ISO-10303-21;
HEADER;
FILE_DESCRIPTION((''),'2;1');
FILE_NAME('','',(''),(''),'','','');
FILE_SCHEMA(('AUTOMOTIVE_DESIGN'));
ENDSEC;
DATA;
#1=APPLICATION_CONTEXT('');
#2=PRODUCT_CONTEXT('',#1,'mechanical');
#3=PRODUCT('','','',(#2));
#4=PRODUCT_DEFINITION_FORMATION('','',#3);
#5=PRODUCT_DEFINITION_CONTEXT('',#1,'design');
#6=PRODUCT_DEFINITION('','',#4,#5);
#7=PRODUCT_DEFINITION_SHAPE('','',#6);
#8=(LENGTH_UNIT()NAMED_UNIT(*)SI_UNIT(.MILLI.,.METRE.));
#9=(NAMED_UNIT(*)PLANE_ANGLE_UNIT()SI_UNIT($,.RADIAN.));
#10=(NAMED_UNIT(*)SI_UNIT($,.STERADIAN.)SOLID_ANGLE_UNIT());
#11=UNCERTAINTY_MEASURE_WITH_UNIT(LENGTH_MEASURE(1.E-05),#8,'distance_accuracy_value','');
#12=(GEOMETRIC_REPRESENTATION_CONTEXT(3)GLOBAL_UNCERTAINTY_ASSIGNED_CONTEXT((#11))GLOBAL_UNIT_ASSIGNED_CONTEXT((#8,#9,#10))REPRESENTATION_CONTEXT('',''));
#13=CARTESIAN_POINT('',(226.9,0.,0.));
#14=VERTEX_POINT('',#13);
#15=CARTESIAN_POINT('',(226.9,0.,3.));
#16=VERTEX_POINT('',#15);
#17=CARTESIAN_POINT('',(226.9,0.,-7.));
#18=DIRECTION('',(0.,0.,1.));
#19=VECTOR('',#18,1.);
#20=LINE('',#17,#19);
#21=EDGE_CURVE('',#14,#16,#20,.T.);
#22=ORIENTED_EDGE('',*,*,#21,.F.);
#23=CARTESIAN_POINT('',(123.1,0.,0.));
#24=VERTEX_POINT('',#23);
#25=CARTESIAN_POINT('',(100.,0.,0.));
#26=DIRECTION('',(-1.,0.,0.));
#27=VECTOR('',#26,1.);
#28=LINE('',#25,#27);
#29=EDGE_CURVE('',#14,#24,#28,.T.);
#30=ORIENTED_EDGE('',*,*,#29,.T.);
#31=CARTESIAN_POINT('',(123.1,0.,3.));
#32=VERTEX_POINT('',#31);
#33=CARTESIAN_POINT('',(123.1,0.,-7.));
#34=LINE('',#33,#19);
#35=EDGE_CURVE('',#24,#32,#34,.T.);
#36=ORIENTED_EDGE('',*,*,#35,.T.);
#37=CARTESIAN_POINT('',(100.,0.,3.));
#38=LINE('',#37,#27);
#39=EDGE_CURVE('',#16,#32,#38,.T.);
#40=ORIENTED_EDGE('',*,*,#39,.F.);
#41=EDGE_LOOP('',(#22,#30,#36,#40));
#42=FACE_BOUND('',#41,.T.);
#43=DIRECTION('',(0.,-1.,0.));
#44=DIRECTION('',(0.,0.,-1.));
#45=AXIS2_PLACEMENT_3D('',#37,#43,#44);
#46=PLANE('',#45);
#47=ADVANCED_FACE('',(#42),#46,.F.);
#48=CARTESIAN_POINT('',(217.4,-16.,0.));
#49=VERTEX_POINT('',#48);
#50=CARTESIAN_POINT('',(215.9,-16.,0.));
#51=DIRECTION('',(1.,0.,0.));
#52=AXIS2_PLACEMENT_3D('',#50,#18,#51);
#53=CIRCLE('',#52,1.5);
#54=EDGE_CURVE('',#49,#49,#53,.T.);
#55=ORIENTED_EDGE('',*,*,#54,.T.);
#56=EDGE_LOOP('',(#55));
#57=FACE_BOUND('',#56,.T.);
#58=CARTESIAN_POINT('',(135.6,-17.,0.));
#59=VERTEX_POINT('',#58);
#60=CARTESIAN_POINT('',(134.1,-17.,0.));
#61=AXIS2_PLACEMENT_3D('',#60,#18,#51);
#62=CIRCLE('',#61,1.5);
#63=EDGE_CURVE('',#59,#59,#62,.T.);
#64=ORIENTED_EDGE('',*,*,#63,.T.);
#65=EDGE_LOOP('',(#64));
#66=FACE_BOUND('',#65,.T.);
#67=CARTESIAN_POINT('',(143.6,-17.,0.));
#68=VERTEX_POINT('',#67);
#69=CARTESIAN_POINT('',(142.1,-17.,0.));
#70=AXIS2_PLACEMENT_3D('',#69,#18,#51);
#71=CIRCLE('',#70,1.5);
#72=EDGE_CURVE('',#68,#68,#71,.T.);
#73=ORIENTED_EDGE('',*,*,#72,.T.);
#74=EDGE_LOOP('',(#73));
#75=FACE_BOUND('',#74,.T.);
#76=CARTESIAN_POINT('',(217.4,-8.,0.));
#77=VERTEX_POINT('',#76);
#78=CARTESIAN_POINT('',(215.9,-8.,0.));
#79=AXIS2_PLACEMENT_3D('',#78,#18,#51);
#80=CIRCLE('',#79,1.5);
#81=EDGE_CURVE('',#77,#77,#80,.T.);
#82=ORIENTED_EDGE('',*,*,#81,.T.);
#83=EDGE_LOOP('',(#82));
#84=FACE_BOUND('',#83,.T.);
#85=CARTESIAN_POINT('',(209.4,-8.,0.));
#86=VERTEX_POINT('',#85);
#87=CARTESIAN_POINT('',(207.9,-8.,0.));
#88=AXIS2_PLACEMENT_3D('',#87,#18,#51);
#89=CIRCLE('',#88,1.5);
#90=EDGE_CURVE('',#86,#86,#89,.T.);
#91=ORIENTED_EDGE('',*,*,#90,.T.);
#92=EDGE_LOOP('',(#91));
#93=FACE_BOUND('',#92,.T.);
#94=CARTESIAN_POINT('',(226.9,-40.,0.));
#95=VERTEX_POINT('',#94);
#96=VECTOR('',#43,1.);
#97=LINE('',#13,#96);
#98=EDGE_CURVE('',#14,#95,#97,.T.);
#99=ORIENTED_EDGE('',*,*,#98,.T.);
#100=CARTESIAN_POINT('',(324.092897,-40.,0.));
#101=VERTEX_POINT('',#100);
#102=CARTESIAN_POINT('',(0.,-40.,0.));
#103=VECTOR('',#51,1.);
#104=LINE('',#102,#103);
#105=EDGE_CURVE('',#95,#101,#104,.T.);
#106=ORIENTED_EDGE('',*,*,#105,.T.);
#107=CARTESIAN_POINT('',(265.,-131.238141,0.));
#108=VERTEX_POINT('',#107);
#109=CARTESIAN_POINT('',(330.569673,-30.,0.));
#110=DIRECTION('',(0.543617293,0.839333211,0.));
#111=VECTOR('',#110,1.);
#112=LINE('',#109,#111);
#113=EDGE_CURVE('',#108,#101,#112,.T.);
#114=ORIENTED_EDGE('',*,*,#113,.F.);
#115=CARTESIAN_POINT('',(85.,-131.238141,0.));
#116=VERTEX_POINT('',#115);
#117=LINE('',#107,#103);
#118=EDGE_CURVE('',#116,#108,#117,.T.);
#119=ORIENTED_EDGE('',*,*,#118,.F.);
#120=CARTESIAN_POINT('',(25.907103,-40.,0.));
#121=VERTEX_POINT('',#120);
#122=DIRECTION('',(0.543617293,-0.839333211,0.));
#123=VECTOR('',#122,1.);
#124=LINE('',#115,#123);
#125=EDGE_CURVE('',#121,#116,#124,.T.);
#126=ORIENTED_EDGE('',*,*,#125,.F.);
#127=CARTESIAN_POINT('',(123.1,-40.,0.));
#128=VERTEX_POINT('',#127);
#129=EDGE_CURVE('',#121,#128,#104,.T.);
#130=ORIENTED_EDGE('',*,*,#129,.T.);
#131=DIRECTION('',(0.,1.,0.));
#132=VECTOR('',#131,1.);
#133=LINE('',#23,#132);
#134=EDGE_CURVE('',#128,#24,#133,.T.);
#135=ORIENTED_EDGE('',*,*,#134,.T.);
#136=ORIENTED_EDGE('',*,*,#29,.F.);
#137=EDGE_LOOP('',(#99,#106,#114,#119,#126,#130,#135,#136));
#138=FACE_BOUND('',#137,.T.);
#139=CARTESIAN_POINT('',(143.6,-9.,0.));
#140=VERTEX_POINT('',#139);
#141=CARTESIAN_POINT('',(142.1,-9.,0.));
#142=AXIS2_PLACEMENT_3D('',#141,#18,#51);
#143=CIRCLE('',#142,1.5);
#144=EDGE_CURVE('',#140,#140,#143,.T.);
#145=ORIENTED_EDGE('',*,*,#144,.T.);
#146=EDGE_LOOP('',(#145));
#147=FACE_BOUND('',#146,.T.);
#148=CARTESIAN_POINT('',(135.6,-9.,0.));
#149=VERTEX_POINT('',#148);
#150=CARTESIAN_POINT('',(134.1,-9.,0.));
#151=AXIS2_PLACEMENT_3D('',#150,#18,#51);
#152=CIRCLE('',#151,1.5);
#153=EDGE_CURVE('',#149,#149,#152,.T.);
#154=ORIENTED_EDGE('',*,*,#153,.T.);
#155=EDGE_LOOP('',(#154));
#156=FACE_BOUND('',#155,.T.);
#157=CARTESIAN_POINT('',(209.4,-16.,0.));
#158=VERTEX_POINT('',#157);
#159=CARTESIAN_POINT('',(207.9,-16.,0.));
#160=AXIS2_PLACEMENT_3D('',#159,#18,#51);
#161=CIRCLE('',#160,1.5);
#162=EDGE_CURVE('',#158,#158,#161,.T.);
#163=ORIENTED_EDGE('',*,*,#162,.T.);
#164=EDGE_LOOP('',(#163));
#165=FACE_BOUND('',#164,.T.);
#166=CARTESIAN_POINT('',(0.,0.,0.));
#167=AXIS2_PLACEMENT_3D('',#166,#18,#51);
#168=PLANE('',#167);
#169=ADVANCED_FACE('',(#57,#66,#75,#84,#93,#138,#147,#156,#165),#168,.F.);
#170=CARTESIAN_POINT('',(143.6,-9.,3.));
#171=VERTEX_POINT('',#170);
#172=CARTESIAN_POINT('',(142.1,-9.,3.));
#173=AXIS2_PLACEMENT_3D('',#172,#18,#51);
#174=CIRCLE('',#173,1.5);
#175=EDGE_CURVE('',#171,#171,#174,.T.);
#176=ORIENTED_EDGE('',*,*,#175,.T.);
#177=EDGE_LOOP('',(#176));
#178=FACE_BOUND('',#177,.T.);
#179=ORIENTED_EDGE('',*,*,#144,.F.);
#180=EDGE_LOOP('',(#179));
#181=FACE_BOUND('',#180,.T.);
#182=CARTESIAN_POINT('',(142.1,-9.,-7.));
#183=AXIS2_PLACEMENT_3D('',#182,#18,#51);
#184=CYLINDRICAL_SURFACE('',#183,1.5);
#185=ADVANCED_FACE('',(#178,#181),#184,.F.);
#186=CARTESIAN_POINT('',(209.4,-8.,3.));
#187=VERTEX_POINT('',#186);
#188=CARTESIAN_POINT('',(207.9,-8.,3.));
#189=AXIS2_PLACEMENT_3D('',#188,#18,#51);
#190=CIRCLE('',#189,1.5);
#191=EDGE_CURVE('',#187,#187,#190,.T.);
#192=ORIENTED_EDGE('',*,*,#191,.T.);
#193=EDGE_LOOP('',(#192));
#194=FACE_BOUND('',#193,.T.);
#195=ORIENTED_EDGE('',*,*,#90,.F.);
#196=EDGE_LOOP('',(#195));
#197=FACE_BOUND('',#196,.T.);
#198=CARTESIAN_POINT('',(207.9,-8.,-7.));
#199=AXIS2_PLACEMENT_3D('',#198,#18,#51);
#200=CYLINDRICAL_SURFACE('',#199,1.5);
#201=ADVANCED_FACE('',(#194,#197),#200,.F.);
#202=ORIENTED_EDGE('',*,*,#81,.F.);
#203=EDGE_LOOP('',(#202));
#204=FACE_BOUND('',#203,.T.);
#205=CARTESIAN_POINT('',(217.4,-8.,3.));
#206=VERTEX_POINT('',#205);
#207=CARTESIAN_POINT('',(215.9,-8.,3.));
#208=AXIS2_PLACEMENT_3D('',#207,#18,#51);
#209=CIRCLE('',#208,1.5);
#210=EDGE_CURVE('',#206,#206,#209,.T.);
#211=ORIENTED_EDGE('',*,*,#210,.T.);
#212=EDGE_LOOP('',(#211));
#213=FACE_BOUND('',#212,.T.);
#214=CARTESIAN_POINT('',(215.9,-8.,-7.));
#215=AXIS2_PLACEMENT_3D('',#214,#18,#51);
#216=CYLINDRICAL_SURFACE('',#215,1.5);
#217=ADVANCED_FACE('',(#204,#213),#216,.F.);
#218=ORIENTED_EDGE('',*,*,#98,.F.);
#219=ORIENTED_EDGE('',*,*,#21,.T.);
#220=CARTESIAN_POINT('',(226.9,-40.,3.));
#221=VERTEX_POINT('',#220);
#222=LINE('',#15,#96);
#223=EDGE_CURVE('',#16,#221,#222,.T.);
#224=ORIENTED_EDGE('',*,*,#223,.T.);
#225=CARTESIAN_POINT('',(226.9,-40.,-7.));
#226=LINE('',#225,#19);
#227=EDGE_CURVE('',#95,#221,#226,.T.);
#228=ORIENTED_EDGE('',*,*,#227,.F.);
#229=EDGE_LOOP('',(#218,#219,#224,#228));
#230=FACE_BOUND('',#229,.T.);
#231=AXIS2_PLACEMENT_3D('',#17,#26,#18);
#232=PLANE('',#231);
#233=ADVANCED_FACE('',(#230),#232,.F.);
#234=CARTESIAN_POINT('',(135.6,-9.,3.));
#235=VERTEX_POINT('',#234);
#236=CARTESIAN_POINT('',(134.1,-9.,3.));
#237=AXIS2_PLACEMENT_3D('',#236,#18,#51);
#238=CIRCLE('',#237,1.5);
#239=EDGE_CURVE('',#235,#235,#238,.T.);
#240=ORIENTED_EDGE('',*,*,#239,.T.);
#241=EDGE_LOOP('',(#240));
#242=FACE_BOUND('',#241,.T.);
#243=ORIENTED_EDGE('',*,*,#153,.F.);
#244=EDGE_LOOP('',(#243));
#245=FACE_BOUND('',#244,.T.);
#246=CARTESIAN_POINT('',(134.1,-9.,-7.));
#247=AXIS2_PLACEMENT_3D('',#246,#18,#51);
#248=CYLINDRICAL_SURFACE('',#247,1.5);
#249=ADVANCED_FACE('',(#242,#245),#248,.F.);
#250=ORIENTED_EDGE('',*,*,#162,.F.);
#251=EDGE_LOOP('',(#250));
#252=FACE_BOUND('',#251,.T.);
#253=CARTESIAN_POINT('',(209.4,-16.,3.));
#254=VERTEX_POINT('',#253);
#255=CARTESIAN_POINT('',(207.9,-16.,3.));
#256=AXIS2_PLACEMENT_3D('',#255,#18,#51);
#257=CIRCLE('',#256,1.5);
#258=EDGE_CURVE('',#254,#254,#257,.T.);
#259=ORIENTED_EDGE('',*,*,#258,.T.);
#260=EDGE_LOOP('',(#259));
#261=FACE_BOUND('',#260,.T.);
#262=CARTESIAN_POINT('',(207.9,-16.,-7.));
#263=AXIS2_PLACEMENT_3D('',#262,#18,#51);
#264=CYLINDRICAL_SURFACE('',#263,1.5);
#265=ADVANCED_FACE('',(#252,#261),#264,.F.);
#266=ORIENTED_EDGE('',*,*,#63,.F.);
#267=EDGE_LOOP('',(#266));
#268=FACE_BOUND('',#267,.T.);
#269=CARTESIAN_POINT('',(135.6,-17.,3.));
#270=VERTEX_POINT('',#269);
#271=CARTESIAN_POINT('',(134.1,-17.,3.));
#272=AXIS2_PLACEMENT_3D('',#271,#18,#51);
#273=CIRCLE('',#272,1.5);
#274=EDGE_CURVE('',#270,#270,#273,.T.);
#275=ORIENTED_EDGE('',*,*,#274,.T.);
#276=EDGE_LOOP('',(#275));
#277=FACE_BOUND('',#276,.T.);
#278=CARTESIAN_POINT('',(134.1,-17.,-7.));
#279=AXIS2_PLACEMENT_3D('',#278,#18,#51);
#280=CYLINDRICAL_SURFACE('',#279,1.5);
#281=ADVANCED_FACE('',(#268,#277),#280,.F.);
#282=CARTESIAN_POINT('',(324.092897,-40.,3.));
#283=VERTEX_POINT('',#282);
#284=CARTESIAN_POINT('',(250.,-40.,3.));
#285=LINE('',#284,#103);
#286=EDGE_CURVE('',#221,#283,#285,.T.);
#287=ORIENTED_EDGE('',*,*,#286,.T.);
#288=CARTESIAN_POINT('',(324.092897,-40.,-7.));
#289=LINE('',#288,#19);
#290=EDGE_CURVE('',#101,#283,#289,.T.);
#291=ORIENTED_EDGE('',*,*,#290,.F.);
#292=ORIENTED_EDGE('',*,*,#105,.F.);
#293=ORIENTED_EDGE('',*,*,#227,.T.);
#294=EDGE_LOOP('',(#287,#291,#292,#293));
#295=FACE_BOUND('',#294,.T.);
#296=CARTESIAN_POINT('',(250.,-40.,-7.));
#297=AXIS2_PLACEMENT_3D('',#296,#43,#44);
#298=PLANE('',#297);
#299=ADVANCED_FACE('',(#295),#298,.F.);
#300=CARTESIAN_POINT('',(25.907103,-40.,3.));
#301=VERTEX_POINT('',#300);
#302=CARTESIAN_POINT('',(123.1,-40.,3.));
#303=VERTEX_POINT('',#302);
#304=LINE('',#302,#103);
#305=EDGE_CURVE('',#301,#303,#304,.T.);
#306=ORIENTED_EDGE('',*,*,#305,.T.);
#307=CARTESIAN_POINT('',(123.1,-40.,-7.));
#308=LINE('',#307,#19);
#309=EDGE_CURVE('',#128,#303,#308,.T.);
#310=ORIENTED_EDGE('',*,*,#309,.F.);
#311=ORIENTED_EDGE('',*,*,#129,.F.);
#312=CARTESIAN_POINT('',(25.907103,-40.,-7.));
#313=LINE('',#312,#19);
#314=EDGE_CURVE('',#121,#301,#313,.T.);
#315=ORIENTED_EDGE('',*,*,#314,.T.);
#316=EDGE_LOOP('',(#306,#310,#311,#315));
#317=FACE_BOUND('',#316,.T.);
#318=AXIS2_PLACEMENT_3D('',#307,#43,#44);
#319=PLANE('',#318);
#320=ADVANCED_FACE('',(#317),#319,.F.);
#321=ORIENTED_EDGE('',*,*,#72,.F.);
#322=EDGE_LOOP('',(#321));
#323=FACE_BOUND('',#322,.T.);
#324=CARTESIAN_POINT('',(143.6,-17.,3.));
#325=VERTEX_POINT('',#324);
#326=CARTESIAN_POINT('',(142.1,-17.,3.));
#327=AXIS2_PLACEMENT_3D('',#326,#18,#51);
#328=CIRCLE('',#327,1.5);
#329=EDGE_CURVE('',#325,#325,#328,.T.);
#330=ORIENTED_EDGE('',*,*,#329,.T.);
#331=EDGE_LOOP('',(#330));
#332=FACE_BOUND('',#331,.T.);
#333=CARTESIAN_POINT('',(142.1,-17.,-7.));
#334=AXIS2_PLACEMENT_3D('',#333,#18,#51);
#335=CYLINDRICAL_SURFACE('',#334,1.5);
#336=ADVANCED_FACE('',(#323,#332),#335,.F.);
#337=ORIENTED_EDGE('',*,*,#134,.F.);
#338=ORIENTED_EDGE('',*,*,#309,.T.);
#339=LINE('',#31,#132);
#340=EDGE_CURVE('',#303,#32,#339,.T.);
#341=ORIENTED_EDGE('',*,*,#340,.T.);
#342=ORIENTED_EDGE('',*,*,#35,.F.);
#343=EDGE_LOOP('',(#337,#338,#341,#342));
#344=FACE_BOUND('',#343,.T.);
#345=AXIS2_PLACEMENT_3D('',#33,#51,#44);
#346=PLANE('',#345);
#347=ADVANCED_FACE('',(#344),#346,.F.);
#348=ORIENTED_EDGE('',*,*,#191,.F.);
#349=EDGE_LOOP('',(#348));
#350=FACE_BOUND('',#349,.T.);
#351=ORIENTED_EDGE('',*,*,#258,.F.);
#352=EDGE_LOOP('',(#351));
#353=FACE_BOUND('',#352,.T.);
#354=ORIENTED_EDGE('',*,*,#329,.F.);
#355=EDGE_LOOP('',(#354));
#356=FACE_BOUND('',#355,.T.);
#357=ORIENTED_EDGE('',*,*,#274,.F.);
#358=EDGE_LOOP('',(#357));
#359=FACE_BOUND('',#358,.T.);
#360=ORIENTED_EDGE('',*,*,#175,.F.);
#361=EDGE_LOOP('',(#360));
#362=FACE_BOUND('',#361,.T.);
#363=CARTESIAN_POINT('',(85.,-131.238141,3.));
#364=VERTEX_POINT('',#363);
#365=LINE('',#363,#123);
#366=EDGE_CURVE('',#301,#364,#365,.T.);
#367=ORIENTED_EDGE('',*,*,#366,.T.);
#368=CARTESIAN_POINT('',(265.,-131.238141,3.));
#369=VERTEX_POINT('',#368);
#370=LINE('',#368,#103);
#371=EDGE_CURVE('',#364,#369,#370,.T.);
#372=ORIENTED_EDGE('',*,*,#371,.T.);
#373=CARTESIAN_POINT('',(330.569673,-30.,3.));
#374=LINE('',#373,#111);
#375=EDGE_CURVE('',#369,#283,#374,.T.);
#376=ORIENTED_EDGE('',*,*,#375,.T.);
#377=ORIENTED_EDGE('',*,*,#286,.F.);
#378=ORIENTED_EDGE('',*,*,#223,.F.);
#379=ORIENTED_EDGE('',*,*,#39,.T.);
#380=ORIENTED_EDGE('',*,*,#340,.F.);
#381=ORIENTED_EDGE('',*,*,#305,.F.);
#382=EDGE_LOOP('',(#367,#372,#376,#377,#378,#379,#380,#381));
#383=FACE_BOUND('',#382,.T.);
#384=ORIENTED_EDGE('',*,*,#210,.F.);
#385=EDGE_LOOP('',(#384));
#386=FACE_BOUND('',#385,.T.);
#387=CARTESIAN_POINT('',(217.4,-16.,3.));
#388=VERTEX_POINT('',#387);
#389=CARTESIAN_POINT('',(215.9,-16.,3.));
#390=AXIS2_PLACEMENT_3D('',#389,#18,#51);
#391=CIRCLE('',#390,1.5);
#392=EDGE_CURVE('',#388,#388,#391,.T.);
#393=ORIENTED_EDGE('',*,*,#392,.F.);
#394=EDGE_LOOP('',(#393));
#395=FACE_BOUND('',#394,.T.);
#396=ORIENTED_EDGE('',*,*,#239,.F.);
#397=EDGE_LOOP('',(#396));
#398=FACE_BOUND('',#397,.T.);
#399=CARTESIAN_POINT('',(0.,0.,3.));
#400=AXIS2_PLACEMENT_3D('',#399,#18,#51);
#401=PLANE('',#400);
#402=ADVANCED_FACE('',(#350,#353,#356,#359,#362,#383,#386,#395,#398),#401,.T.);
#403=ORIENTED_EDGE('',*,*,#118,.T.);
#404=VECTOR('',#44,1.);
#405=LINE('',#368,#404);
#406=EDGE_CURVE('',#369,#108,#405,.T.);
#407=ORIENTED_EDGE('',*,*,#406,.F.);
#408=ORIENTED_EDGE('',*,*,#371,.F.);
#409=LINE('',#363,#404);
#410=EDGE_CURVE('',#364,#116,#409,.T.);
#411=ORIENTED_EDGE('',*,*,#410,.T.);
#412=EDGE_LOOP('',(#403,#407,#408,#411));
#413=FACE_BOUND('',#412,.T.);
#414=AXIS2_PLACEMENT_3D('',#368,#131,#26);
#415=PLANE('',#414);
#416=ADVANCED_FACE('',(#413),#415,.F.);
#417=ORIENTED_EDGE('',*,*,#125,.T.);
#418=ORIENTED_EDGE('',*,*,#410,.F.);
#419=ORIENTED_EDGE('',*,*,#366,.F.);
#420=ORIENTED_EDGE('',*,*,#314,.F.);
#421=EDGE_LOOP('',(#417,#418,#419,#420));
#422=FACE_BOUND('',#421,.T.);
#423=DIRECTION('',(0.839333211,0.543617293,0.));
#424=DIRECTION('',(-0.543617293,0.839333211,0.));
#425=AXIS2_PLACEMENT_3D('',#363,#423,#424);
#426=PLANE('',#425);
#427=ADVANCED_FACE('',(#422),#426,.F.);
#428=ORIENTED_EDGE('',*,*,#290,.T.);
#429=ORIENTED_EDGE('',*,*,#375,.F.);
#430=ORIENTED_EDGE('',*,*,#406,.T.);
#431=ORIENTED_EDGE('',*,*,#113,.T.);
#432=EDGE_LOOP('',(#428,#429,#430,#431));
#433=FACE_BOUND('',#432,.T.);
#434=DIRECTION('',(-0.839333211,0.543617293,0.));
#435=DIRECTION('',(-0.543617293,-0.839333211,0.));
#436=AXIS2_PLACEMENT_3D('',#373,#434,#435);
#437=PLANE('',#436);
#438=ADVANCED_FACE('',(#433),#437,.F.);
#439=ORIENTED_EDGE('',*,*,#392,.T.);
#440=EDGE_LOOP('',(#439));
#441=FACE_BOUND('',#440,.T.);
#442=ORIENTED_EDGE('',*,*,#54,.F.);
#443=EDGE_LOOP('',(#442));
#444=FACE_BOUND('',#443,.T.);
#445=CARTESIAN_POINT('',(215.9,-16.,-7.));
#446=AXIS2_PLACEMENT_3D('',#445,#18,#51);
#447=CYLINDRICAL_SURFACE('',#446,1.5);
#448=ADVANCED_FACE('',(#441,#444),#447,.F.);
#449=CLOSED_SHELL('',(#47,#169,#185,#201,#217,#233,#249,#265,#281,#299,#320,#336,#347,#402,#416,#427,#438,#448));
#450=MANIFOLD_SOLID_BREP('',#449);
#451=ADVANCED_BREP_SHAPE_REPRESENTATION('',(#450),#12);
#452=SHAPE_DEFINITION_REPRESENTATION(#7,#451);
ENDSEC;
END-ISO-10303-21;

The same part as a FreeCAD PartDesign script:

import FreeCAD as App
import Part
import Sketcher

V = App.Vector
Q = App.Units.Quantity


def add_polygon(sketch, points):
    """Adds a closed chain of lines whose ends are joined by coincident constraints."""
    first, n = sketch.GeometryCount, len(points)
    for a, b in zip(points, points[1:] + points[:1]):
        sketch.addGeometry(Part.LineSegment(App.Vector(*a, 0), App.Vector(*b, 0)), False)
    for i in range(n):
        sketch.addConstraint(Sketcher.Constraint("Coincident", first + i, 2, first + (i + 1) % n, 1))

doc = App.newDocument("Part")
body = doc.addObject("PartDesign::Body", "Body")

sketch1 = body.newObject("Sketcher::SketchObject", "Sketch")
sketch1.AttachmentSupport = (doc.getObject("XY_Plane"), [""])
sketch1.MapMode = "FlatFace"
add_polygon(sketch1, [(250, 0), (100, 0), (100, -30), (19, -30), (85, -131), (265, -131), (331, -30), (250, -30)])
sketch1.addConstraint([
    Sketcher.Constraint("Horizontal", 0),
    Sketcher.Constraint("Vertical", 1),
    Sketcher.Constraint("Horizontal", 2),
    Sketcher.Constraint("Horizontal", 4),
    Sketcher.Constraint("Horizontal", 6),
    Sketcher.Constraint("Vertical", 7),
    Sketcher.Constraint("PointOnObject", 0, 2, -1),
    Sketcher.Constraint("Horizontal", 2, 2, 5, 2),
    Sketcher.Constraint("Equal", 2, 6),
    Sketcher.Constraint("Equal", 3, 5),
    Sketcher.Constraint("DistanceX", 0, 2, 0, 1, Q("150 mm")),
    Sketcher.Constraint("DistanceX", 4, 1, 4, 2, Q("180 mm")),
    Sketcher.Constraint("DistanceY", 1, 2, 1, 1, Q("30 mm")),
    Sketcher.Constraint("DistanceX", -1, 1, 0, 2, Q("100 mm")),
    Sketcher.Constraint("Distance", 3, Q("120.617342 mm")),
    Sketcher.Constraint("DistanceX", 2, 2, 2, 1, Q("80.569673 mm")),
])
pad1 = body.newObject("PartDesign::Pad", "Pad")
pad1.Profile = sketch1
pad1.Length = 3

sketch2 = body.newObject("Sketcher::SketchObject", "Sketch001")
sketch2.AttachmentSupport = (doc.getObject("XY_Plane"), [""])
sketch2.MapMode = "FlatFace"
sketch2.AttachmentOffset = App.Placement(V(0, 0, 3), App.Rotation())
add_polygon(sketch2, [(324, -40), (331, -30), (250, -30), (250, 0), (227, 0), (227, -40)])
add_polygon(sketch2, [(26, -40), (123, -40), (123, 0), (100, 0), (100, -30), (19, -30)])
sketch2.addConstraint([
    Sketcher.Constraint("Horizontal", 1),
    Sketcher.Constraint("Vertical", 2),
    Sketcher.Constraint("Horizontal", 3),
    Sketcher.Constraint("Vertical", 4),
    Sketcher.Constraint("Horizontal", 5),
    Sketcher.Constraint("Horizontal", 6),
    Sketcher.Constraint("Vertical", 7),
    Sketcher.Constraint("Horizontal", 8),
    Sketcher.Constraint("Vertical", 9),
    Sketcher.Constraint("Horizontal", 10),
    Sketcher.Constraint("PointOnObject", 2, 2, -1),
    Sketcher.Constraint("PointOnObject", 7, 2, -1),
    Sketcher.Constraint("Horizontal", 5, 2, 6, 2),
    Sketcher.Constraint("Horizontal", 1, 2, 9, 2),
    Sketcher.Constraint("Equal", 5, 6),
    Sketcher.Constraint("Equal", 3, 8),
    Sketcher.Constraint("Equal", 1, 10),
    Sketcher.Constraint("DistanceY", 2, 1, 2, 2, Q("30 mm")),
    Sketcher.Constraint("DistanceY", 4, 2, 4, 1, Q("40 mm")),
    Sketcher.Constraint("DistanceX", 3, 2, 3, 1, Q("23.1 mm")),
    Sketcher.Constraint("DistanceX", -1, 1, 1, 2, Q("250 mm")),
    Sketcher.Constraint("DistanceX", -1, 1, 8, 2, Q("100 mm")),
    Sketcher.Constraint("Distance", 0, Q("11.914219 mm")),
    Sketcher.Constraint("DistanceX", 1, 2, 1, 1, Q("80.569673 mm")),
])
pocket1 = body.newObject("PartDesign::Pocket", "Pocket")
pocket1.Profile = sketch2
pocket1.Length = 10

sketch3 = body.newObject("Sketcher::SketchObject", "Sketch002")
sketch3.AttachmentSupport = (doc.getObject("XY_Plane"), [""])
sketch3.MapMode = "FlatFace"
sketch3.AttachmentOffset = App.Placement(V(0, 0, 3), App.Rotation())
sketch3.addGeometry([
    Part.Circle(V(134.1, -9, 0), V(0, 0, 1), 1.5),
    Part.Circle(V(134.1, -17, 0), V(0, 0, 1), 1.5),
    Part.Circle(V(142.1, -9, 0), V(0, 0, 1), 1.5),
    Part.Circle(V(142.1, -17, 0), V(0, 0, 1), 1.5),
    Part.Circle(V(207.9, -8, 0), V(0, 0, 1), 1.5),
    Part.Circle(V(215.9, -8, 0), V(0, 0, 1), 1.5),
    Part.Circle(V(207.9, -16, 0), V(0, 0, 1), 1.5),
    Part.Circle(V(215.9, -16, 0), V(0, 0, 1), 1.5),
], False)
sketch3.addConstraint([
    Sketcher.Constraint("Equal", 0, 1),
    Sketcher.Constraint("Equal", 1, 2),
    Sketcher.Constraint("Equal", 2, 3),
    Sketcher.Constraint("Equal", 3, 4),
    Sketcher.Constraint("Equal", 4, 5),
    Sketcher.Constraint("Equal", 5, 6),
    Sketcher.Constraint("Equal", 6, 7),
    Sketcher.Constraint("Horizontal", 0, 3, 2, 3),
    Sketcher.Constraint("Horizontal", 1, 3, 3, 3),
    Sketcher.Constraint("Horizontal", 4, 3, 5, 3),
    Sketcher.Constraint("Horizontal", 6, 3, 7, 3),
    Sketcher.Constraint("Vertical", 0, 3, 1, 3),
    Sketcher.Constraint("Vertical", 2, 3, 3, 3),
    Sketcher.Constraint("Vertical", 4, 3, 6, 3),
    Sketcher.Constraint("Vertical", 5, 3, 7, 3),
    Sketcher.Constraint("Diameter", 0, Q("3 mm")),
    Sketcher.Constraint("DistanceY", 0, 3, -1, 1, Q("9 mm")),
    Sketcher.Constraint("DistanceY", 1, 3, -1, 1, Q("17 mm")),
    Sketcher.Constraint("DistanceY", 4, 3, -1, 1, Q("8 mm")),
    Sketcher.Constraint("DistanceY", 6, 3, -1, 1, Q("16 mm")),
    Sketcher.Constraint("DistanceX", 0, 3, 2, 3, Q("8 mm")),
    Sketcher.Constraint("DistanceX", 4, 3, 5, 3, Q("8 mm")),
    Sketcher.Constraint("DistanceX", -1, 1, 0, 3, Q("134.1 mm")),
    Sketcher.Constraint("DistanceX", -1, 1, 4, 3, Q("207.9 mm")),
])
pocket2 = body.newObject("PartDesign::Pocket", "Pocket001")
pocket2.Profile = sketch3
pocket2.Length = 10

doc.recompute()
